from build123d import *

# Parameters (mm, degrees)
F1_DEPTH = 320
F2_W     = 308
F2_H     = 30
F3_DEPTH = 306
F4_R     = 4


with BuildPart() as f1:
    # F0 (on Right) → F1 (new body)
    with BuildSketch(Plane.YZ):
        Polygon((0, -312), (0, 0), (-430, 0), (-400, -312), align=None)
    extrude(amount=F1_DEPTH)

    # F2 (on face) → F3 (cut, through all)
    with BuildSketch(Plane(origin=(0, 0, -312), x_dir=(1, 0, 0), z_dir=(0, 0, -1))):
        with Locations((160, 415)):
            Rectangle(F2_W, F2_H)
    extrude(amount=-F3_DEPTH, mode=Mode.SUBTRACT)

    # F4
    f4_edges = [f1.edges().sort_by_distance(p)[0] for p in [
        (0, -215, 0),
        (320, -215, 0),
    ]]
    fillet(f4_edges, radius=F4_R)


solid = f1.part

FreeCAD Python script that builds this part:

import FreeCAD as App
import Part
import Sketcher


def edges_at(feature, points):
    """Names of the edges that pass closest to the given points."""
    edges = feature.Shape.Edges
    near = lambda p: min(range(len(edges)), key=lambda i: edges[i].distToShape(Part.Vertex(*p))[0])
    return sorted({f"Edge{near(p) + 1}" for p in points})

doc = App.newDocument("Part")
body = doc.addObject("PartDesign::Body", "Body")

# Sketch on YZ plane
sketch1 = body.newObject("Sketcher::SketchObject", "Sketch")
sketch1.AttachmentSupport = (doc.getObject("YZ_Plane"), [""])
sketch1.MapMode = "FlatFace"
sketch1.addGeometry([
    Part.LineSegment(App.Vector(0, -312, 0), App.Vector(0, 0, 0)),
    Part.LineSegment(App.Vector(0, 0, 0), App.Vector(-430, 0, 0)),
    Part.LineSegment(App.Vector(-430, 0, 0), App.Vector(-400, -312, 0)),
    Part.LineSegment(App.Vector(-400, -312, 0), App.Vector(0, -312, 0)),
], False)
sketch1.addConstraint([
    Sketcher.Constraint("Coincident", 0, 2, 1, 1),
    Sketcher.Constraint("Coincident", 1, 2, 2, 1),
    Sketcher.Constraint("Coincident", 2, 2, 3, 1),
    Sketcher.Constraint("Coincident", 3, 2, 0, 1),
    Sketcher.Constraint("Vertical", 0),
    Sketcher.Constraint("Horizontal", 1),
    Sketcher.Constraint("Horizontal", 3),
    Sketcher.Constraint("Coincident", 0, 2, -1, 1),
    Sketcher.Constraint("DistanceX", 1, 2, 1, 1, 430.0),
    Sketcher.Constraint("DistanceX", 3, 1, 3, 2, 400.0),
    Sketcher.Constraint("DistanceY", 0, 1, 0, 2, 312.0),
])
pad1 = body.newObject("PartDesign::Pad", "Pad")
pad1.Profile = sketch1
pad1.Length = 320

# Sketch on XY plane
sketch2 = body.newObject("Sketcher::SketchObject", "Sketch001")
sketch2.AttachmentSupport = (doc.getObject("XY_Plane"), [""])
sketch2.MapMode = "FlatFace"
sketch2.AttachmentOffset = App.Placement(App.Vector(0, 0, -312), App.Rotation())
sketch2.addGeometry([
    Part.LineSegment(App.Vector(6, -430, 0), App.Vector(6, -400, 0)),
    Part.LineSegment(App.Vector(6, -400, 0), App.Vector(314, -400, 0)),
    Part.LineSegment(App.Vector(314, -400, 0), App.Vector(314, -430, 0)),
    Part.LineSegment(App.Vector(314, -430, 0), App.Vector(6, -430, 0)),
], False)
sketch2.addConstraint([
    Sketcher.Constraint("Coincident", 0, 2, 1, 1),
    Sketcher.Constraint("Coincident", 1, 2, 2, 1),
    Sketcher.Constraint("Coincident", 2, 2, 3, 1),
    Sketcher.Constraint("Coincident", 3, 2, 0, 1),
    Sketcher.Constraint("Vertical", 0),
    Sketcher.Constraint("Horizontal", 1),
    Sketcher.Constraint("Vertical", 2),
    Sketcher.Constraint("Horizontal", 3),
    Sketcher.Constraint("DistanceX", 1, 1, 1, 2, 308.0),
    Sketcher.Constraint("DistanceY", 0, 1, 0, 2, 30.0),
    Sketcher.Constraint("DistanceX", -1, 1, 0, 2, 6.0),
    Sketcher.Constraint("DistanceY", 0, 2, -1, 1, 400.0),
])
pocket1 = body.newObject("PartDesign::Pocket", "Pocket")
pocket1.Profile = sketch2
pocket1.Length = 306
pocket1.Reversed = True
doc.recompute()

fillet = body.newObject("PartDesign::Fillet", "Fillet")
fillet.Base = (pocket1, edges_at(pocket1, [(0, -215, 0), (320, -215, 0)]))
fillet.Radius = 4

doc.recompute()
